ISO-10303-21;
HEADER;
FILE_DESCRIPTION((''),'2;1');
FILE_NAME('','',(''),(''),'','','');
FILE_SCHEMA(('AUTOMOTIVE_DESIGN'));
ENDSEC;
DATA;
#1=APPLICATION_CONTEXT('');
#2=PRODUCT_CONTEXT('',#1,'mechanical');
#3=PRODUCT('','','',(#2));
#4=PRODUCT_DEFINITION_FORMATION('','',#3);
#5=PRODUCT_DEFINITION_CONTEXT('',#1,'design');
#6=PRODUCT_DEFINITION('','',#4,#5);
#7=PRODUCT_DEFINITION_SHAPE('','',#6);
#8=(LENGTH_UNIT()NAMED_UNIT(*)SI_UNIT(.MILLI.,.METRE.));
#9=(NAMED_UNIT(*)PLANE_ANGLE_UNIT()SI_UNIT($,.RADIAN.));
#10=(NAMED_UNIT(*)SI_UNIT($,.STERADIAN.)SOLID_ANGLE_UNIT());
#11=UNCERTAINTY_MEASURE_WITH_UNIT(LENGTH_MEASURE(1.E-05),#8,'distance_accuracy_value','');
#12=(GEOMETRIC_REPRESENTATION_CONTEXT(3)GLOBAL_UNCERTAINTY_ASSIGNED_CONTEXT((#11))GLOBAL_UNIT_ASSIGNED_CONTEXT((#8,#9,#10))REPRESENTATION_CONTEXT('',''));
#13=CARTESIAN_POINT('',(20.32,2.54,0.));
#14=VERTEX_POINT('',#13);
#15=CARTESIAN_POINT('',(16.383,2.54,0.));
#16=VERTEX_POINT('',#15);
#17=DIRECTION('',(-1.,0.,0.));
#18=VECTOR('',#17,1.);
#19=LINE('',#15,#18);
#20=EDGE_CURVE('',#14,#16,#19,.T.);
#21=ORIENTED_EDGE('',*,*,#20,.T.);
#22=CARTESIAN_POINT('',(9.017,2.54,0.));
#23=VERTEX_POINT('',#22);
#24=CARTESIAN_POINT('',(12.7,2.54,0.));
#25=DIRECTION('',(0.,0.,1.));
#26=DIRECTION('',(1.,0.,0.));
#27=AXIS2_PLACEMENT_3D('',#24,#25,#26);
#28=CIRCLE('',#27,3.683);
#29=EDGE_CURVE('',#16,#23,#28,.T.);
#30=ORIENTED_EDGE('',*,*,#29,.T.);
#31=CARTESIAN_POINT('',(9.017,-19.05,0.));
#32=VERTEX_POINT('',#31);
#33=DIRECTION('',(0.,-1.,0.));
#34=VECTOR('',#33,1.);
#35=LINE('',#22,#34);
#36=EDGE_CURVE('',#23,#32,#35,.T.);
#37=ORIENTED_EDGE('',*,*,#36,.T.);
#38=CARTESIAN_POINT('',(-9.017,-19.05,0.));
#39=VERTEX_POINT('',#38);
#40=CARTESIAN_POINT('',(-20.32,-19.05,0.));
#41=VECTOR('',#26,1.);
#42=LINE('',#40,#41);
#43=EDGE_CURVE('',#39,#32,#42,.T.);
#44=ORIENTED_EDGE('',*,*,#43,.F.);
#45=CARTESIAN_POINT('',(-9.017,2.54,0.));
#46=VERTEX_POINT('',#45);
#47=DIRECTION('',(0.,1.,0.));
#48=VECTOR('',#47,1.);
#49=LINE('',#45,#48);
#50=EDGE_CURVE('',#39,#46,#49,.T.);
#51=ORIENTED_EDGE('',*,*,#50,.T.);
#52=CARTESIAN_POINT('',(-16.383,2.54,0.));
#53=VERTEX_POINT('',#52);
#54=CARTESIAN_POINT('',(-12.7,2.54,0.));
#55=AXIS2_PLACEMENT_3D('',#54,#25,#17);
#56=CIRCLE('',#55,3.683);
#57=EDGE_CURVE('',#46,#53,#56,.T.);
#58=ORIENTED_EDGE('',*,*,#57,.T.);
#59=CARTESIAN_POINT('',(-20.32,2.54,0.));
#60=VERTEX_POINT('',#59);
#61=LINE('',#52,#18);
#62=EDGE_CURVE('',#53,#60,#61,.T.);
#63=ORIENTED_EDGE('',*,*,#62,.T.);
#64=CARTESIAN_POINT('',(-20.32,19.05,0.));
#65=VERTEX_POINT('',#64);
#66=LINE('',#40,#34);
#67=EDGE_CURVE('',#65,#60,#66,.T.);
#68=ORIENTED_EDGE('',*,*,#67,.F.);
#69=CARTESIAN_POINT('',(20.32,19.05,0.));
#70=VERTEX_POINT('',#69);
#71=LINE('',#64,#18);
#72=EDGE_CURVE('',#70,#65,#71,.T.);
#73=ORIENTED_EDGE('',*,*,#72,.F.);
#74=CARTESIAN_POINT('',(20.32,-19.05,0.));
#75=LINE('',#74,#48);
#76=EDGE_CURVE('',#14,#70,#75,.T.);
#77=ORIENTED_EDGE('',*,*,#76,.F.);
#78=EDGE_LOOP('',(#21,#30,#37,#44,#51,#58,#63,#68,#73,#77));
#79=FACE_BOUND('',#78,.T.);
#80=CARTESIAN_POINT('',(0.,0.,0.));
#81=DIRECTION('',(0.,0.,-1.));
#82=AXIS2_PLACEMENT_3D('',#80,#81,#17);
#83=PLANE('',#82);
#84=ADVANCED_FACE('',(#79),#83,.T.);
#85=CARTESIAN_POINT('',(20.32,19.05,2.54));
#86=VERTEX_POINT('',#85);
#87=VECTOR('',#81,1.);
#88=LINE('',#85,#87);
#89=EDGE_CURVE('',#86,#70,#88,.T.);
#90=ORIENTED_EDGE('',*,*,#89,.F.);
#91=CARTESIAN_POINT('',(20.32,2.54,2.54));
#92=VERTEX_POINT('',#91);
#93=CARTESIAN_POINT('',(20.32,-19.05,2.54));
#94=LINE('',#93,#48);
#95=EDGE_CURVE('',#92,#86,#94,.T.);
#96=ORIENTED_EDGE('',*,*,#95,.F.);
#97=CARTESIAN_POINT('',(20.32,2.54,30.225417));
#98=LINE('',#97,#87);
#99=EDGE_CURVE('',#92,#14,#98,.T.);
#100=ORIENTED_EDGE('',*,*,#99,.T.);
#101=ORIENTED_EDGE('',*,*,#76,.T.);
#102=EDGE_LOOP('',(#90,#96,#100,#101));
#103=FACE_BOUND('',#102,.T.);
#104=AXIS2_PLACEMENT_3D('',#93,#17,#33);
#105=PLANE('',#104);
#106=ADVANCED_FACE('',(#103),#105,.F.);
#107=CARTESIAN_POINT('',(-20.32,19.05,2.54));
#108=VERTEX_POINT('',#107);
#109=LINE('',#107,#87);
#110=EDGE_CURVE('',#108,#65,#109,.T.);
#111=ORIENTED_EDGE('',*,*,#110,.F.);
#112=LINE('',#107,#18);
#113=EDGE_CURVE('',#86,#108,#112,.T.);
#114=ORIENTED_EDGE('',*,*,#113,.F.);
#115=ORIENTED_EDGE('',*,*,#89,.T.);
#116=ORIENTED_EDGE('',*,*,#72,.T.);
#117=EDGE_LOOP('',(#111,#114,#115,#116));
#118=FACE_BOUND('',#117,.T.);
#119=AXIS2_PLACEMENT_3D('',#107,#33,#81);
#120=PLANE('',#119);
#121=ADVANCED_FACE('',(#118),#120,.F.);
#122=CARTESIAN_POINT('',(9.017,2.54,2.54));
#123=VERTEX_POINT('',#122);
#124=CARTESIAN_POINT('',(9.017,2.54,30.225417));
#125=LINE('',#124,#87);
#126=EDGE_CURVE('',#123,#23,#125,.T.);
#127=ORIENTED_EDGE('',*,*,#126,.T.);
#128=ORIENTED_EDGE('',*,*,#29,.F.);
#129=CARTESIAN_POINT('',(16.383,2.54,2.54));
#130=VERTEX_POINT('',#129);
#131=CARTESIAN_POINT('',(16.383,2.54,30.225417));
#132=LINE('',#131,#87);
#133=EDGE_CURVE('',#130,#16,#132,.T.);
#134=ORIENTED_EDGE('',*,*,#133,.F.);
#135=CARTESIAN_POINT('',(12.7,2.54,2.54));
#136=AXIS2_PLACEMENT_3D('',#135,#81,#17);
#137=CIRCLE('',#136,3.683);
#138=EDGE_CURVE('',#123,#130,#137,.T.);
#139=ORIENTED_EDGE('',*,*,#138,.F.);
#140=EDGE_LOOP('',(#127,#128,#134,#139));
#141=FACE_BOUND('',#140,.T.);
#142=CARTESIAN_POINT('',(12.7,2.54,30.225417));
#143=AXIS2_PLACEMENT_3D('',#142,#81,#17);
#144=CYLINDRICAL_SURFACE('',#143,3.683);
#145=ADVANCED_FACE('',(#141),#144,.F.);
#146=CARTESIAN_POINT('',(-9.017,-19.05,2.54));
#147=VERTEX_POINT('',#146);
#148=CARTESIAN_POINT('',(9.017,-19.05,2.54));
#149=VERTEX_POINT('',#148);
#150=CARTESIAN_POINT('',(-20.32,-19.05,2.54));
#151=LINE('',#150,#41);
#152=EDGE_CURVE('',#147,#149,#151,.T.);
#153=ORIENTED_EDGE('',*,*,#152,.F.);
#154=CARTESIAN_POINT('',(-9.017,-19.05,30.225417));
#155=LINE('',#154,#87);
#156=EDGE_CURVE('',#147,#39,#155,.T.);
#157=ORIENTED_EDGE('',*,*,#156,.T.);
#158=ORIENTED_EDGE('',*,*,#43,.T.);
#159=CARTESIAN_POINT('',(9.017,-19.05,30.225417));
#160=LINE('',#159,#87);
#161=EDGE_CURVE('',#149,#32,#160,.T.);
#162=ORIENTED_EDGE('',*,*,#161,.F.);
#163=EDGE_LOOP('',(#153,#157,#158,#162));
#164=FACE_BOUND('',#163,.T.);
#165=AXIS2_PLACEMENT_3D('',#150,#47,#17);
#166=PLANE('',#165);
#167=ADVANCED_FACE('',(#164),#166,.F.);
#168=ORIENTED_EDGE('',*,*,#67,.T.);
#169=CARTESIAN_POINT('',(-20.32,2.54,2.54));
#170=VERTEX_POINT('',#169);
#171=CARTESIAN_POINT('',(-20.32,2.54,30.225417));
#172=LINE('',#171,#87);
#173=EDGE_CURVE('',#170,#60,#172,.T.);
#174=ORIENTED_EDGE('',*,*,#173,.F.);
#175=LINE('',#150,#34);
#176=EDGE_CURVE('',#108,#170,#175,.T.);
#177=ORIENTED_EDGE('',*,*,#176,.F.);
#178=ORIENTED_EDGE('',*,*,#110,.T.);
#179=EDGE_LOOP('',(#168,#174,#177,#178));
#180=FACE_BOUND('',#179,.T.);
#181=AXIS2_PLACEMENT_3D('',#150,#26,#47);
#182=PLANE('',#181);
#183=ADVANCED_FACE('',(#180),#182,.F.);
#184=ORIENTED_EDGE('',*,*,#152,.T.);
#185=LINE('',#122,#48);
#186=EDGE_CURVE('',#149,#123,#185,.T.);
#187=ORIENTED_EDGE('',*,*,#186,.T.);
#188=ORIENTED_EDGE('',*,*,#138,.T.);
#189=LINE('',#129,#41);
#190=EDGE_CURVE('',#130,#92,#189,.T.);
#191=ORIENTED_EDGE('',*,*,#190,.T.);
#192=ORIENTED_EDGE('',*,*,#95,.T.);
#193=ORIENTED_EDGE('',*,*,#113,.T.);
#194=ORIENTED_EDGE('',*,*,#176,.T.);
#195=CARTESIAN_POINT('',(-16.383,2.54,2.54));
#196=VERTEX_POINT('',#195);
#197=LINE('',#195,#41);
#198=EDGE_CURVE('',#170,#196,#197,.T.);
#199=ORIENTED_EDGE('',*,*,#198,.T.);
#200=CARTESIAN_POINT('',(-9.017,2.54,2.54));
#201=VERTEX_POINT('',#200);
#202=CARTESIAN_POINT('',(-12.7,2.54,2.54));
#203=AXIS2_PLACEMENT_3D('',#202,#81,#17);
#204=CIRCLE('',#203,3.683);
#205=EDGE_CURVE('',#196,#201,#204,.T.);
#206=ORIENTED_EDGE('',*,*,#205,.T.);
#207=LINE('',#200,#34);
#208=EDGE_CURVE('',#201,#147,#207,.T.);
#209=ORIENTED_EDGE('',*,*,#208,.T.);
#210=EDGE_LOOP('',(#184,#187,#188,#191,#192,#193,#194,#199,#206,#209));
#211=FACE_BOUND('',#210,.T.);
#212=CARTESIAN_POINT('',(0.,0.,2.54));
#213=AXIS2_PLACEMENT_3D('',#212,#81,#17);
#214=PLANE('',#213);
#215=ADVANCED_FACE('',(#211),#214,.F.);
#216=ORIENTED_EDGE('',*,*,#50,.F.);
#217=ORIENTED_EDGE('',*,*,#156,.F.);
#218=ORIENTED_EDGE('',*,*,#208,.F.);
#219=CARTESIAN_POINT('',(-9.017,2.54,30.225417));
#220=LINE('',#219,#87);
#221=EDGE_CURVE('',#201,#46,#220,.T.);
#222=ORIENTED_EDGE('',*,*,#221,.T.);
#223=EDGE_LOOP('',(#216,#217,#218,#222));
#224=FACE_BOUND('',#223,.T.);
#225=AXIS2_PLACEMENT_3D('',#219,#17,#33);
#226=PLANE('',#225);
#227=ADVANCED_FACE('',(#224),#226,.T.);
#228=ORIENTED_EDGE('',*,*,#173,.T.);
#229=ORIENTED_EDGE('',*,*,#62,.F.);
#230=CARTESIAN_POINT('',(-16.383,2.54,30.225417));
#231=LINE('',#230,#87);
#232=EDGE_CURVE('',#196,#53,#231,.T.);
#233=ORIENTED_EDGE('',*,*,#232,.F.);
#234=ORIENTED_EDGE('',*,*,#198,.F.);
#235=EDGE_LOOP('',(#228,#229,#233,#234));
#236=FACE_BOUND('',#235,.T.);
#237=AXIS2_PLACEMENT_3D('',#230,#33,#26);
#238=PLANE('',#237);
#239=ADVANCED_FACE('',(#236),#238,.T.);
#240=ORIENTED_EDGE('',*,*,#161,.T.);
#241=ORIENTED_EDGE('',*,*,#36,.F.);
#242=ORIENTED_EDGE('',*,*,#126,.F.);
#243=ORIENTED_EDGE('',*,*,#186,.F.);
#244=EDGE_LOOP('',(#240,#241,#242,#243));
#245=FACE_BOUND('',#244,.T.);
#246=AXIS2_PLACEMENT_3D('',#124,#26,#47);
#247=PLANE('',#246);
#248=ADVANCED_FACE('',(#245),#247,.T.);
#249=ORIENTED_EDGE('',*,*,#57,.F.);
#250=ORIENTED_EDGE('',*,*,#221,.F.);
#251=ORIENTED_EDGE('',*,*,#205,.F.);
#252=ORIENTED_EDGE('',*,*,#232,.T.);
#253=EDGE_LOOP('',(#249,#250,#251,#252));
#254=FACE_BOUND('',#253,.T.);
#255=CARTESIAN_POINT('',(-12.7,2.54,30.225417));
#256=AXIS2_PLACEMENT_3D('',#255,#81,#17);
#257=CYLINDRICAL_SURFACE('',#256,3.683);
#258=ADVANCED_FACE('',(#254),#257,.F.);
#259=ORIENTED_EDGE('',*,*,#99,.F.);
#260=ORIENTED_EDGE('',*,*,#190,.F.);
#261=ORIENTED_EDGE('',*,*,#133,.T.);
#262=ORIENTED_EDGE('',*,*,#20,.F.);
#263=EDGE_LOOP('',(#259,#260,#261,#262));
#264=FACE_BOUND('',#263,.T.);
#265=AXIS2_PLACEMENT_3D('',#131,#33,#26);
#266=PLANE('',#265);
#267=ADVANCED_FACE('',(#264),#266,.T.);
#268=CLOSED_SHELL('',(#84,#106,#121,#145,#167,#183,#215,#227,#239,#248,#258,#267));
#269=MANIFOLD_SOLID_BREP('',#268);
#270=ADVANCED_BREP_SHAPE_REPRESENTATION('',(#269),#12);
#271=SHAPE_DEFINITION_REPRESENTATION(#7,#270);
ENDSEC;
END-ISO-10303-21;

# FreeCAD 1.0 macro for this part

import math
import FreeCAD as App
import Part
import Sketcher
Q = App.Units.Quantity


def add_polygon(sketch, points):
    """Adds a closed chain of lines whose ends are joined by coincident constraints."""
    first, n = sketch.GeometryCount, len(points)
    for a, b in zip(points, points[1:] + points[:1]):
        sketch.addGeometry(Part.LineSegment(App.Vector(*a, 0), App.Vector(*b, 0)), False)
    for i in range(n):
        sketch.addConstraint(Sketcher.Constraint("Coincident", first + i, 2, first + (i + 1) % n, 1))

doc = App.newDocument("Part")
body = doc.addObject("PartDesign::Body", "Body")

# Sketch on XY plane
sketch1 = body.newObject("Sketcher::SketchObject", "Sketch")
sketch1.AttachmentSupport = (doc.getObject("XY_Plane"), [""])
sketch1.MapMode = "FlatFace"
add_polygon(sketch1, [(-20.3, 19.1), (-20.3, -19.1), (20.3, -19.1), (20.3, 19.1)])  # lines 0-3
sketch1.addGeometry(Part.Circle(App.Vector(-12.7, 2.5, 0), App.Vector(0, 0, 1), 3.2), False)  # 4
sketch1.addGeometry(Part.Circle(App.Vector(12.7, 2.5, 0), App.Vector(0, 0, 1), 3.2), False)  # 5
sketch1.addConstraint([
    Sketcher.Constraint("Vertical", 0),
    Sketcher.Constraint("Horizontal", 1),
    Sketcher.Constraint("Vertical", 2),
    Sketcher.Constraint("Horizontal", 3),
    Sketcher.Constraint("Equal", 4, 5),
    Sketcher.Constraint("Symmetric", 0, 2, 2, 2, -1, 1),
    Sketcher.Constraint("Symmetric", 4, 3, 5, 3, -2),
    Sketcher.Constraint("Diameter", 4, Q("0.25 in")),
    Sketcher.Constraint("DistanceX", 1, 1, 1, 2, Q("1.6 in")),
    Sketcher.Constraint("DistanceY", 0, 2, 0, 1, Q("1.5 in")),
    Sketcher.Constraint("DistanceX", 4, 3, 5, 3, Q("1 in")),
    Sketcher.Constraint("DistanceY", -1, 1, 4, 3, Q("0.1 in")),
])
pad1 = body.newObject("PartDesign::Pad", "Pad")
pad1.Profile = sketch1
pad1.Length = Q("0.1 in")

# Sketch on XY plane
sketch2 = body.newObject("Sketcher::SketchObject", "Sketch001")
sketch2.AttachmentSupport = (doc.getObject("XY_Plane"), [""])
sketch2.MapMode = "FlatFace"
sketch2.addGeometry([
    Part.LineSegment(App.Vector(9, 2.5, 0), App.Vector(9, -19.1, 0)),  # 0
    Part.LineSegment(App.Vector(9, -19.1, 0), App.Vector(20.3, -19.1, 0)),  # 1
    Part.LineSegment(App.Vector(20.3, -19.1, 0), App.Vector(20.3, 2.5, 0)),  # 2
    Part.LineSegment(App.Vector(20.3, 2.5, 0), App.Vector(16.4, 2.5, 0)),  # 3
    Part.ArcOfCircle(Part.Circle(App.Vector(12.7, 2.5, 0), App.Vector(0, 0, 1), 3.7), math.radians(0), math.radians(180)),  # 4
    Part.LineSegment(App.Vector(-9, -19.1, 0), App.Vector(-9, 2.5, 0)),  # 5
    Part.ArcOfCircle(Part.Circle(App.Vector(-12.7, 2.5, 0), App.Vector(0, 0, 1), 3.7), math.radians(0), math.radians(180)),  # 6
    Part.LineSegment(App.Vector(-16.4, 2.5, 0), App.Vector(-20.3, 2.5, 0)),  # 7
    Part.LineSegment(App.Vector(-20.3, 2.5, 0), App.Vector(-20.3, -19.1, 0)),  # 8
    Part.LineSegment(App.Vector(-20.3, -19.1, 0), App.Vector(-9, -19.1, 0)),  # 9
], False)
sketch2.addConstraint([
    Sketcher.Constraint("Coincident", 0, 2, 1, 1),
    Sketcher.Constraint("Coincident", 1, 2, 2, 1),
    Sketcher.Constraint("Coincident", 2, 2, 3, 1),
    Sketcher.Constraint("Coincident", 3, 2, 4, 1),
    Sketcher.Constraint("Tangent", 4, 2, 0, 1),
    Sketcher.Constraint("Tangent", 5, 2, 6, 1),
    Sketcher.Constraint("Coincident", 6, 2, 7, 1),
    Sketcher.Constraint("Coincident", 7, 2, 8, 1),
    Sketcher.Constraint("Coincident", 8, 2, 9, 1),
    Sketcher.Constraint("Coincident", 9, 2, 5, 1),
    Sketcher.Constraint("Vertical", 0),
    Sketcher.Constraint("Horizontal", 1),
    Sketcher.Constraint("Vertical", 2),
    Sketcher.Constraint("Horizontal", 3),
    Sketcher.Constraint("Vertical", 5),
    Sketcher.Constraint("Horizontal", 7),
    Sketcher.Constraint("Vertical", 8),
    Sketcher.Constraint("Horizontal", 9),
    Sketcher.Constraint("Equal", 4, 6),
    Sketcher.Constraint("Symmetric", 4, 3, 6, 3, -2),
    Sketcher.Constraint("Symmetric", 2, 2, 7, 2, -2),
    Sketcher.Constraint("Horizontal", 6, 3, 2, 2),
    Sketcher.Constraint("Horizontal", 1, 2, 8, 2),
    Sketcher.Constraint("Radius", 4, Q("0.145 in")),
    Sketcher.Constraint("DistanceX", 6, 3, 4, 3, Q("1 in")),
    Sketcher.Constraint("DistanceY", 0, 2, 0, 1, Q("0.85 in")),
    Sketcher.Constraint("DistanceY", -1, 1, 4, 3, Q("0.1 in")),
    Sketcher.Constraint("DistanceX", -1, 1, 1, 2, Q("0.8 in")),
])
pocket1 = body.newObject("PartDesign::Pocket", "Pocket")
pocket1.Profile = sketch2
pocket1.Length = Q("0.1 in")
pocket1.Reversed = True

doc.recompute()
